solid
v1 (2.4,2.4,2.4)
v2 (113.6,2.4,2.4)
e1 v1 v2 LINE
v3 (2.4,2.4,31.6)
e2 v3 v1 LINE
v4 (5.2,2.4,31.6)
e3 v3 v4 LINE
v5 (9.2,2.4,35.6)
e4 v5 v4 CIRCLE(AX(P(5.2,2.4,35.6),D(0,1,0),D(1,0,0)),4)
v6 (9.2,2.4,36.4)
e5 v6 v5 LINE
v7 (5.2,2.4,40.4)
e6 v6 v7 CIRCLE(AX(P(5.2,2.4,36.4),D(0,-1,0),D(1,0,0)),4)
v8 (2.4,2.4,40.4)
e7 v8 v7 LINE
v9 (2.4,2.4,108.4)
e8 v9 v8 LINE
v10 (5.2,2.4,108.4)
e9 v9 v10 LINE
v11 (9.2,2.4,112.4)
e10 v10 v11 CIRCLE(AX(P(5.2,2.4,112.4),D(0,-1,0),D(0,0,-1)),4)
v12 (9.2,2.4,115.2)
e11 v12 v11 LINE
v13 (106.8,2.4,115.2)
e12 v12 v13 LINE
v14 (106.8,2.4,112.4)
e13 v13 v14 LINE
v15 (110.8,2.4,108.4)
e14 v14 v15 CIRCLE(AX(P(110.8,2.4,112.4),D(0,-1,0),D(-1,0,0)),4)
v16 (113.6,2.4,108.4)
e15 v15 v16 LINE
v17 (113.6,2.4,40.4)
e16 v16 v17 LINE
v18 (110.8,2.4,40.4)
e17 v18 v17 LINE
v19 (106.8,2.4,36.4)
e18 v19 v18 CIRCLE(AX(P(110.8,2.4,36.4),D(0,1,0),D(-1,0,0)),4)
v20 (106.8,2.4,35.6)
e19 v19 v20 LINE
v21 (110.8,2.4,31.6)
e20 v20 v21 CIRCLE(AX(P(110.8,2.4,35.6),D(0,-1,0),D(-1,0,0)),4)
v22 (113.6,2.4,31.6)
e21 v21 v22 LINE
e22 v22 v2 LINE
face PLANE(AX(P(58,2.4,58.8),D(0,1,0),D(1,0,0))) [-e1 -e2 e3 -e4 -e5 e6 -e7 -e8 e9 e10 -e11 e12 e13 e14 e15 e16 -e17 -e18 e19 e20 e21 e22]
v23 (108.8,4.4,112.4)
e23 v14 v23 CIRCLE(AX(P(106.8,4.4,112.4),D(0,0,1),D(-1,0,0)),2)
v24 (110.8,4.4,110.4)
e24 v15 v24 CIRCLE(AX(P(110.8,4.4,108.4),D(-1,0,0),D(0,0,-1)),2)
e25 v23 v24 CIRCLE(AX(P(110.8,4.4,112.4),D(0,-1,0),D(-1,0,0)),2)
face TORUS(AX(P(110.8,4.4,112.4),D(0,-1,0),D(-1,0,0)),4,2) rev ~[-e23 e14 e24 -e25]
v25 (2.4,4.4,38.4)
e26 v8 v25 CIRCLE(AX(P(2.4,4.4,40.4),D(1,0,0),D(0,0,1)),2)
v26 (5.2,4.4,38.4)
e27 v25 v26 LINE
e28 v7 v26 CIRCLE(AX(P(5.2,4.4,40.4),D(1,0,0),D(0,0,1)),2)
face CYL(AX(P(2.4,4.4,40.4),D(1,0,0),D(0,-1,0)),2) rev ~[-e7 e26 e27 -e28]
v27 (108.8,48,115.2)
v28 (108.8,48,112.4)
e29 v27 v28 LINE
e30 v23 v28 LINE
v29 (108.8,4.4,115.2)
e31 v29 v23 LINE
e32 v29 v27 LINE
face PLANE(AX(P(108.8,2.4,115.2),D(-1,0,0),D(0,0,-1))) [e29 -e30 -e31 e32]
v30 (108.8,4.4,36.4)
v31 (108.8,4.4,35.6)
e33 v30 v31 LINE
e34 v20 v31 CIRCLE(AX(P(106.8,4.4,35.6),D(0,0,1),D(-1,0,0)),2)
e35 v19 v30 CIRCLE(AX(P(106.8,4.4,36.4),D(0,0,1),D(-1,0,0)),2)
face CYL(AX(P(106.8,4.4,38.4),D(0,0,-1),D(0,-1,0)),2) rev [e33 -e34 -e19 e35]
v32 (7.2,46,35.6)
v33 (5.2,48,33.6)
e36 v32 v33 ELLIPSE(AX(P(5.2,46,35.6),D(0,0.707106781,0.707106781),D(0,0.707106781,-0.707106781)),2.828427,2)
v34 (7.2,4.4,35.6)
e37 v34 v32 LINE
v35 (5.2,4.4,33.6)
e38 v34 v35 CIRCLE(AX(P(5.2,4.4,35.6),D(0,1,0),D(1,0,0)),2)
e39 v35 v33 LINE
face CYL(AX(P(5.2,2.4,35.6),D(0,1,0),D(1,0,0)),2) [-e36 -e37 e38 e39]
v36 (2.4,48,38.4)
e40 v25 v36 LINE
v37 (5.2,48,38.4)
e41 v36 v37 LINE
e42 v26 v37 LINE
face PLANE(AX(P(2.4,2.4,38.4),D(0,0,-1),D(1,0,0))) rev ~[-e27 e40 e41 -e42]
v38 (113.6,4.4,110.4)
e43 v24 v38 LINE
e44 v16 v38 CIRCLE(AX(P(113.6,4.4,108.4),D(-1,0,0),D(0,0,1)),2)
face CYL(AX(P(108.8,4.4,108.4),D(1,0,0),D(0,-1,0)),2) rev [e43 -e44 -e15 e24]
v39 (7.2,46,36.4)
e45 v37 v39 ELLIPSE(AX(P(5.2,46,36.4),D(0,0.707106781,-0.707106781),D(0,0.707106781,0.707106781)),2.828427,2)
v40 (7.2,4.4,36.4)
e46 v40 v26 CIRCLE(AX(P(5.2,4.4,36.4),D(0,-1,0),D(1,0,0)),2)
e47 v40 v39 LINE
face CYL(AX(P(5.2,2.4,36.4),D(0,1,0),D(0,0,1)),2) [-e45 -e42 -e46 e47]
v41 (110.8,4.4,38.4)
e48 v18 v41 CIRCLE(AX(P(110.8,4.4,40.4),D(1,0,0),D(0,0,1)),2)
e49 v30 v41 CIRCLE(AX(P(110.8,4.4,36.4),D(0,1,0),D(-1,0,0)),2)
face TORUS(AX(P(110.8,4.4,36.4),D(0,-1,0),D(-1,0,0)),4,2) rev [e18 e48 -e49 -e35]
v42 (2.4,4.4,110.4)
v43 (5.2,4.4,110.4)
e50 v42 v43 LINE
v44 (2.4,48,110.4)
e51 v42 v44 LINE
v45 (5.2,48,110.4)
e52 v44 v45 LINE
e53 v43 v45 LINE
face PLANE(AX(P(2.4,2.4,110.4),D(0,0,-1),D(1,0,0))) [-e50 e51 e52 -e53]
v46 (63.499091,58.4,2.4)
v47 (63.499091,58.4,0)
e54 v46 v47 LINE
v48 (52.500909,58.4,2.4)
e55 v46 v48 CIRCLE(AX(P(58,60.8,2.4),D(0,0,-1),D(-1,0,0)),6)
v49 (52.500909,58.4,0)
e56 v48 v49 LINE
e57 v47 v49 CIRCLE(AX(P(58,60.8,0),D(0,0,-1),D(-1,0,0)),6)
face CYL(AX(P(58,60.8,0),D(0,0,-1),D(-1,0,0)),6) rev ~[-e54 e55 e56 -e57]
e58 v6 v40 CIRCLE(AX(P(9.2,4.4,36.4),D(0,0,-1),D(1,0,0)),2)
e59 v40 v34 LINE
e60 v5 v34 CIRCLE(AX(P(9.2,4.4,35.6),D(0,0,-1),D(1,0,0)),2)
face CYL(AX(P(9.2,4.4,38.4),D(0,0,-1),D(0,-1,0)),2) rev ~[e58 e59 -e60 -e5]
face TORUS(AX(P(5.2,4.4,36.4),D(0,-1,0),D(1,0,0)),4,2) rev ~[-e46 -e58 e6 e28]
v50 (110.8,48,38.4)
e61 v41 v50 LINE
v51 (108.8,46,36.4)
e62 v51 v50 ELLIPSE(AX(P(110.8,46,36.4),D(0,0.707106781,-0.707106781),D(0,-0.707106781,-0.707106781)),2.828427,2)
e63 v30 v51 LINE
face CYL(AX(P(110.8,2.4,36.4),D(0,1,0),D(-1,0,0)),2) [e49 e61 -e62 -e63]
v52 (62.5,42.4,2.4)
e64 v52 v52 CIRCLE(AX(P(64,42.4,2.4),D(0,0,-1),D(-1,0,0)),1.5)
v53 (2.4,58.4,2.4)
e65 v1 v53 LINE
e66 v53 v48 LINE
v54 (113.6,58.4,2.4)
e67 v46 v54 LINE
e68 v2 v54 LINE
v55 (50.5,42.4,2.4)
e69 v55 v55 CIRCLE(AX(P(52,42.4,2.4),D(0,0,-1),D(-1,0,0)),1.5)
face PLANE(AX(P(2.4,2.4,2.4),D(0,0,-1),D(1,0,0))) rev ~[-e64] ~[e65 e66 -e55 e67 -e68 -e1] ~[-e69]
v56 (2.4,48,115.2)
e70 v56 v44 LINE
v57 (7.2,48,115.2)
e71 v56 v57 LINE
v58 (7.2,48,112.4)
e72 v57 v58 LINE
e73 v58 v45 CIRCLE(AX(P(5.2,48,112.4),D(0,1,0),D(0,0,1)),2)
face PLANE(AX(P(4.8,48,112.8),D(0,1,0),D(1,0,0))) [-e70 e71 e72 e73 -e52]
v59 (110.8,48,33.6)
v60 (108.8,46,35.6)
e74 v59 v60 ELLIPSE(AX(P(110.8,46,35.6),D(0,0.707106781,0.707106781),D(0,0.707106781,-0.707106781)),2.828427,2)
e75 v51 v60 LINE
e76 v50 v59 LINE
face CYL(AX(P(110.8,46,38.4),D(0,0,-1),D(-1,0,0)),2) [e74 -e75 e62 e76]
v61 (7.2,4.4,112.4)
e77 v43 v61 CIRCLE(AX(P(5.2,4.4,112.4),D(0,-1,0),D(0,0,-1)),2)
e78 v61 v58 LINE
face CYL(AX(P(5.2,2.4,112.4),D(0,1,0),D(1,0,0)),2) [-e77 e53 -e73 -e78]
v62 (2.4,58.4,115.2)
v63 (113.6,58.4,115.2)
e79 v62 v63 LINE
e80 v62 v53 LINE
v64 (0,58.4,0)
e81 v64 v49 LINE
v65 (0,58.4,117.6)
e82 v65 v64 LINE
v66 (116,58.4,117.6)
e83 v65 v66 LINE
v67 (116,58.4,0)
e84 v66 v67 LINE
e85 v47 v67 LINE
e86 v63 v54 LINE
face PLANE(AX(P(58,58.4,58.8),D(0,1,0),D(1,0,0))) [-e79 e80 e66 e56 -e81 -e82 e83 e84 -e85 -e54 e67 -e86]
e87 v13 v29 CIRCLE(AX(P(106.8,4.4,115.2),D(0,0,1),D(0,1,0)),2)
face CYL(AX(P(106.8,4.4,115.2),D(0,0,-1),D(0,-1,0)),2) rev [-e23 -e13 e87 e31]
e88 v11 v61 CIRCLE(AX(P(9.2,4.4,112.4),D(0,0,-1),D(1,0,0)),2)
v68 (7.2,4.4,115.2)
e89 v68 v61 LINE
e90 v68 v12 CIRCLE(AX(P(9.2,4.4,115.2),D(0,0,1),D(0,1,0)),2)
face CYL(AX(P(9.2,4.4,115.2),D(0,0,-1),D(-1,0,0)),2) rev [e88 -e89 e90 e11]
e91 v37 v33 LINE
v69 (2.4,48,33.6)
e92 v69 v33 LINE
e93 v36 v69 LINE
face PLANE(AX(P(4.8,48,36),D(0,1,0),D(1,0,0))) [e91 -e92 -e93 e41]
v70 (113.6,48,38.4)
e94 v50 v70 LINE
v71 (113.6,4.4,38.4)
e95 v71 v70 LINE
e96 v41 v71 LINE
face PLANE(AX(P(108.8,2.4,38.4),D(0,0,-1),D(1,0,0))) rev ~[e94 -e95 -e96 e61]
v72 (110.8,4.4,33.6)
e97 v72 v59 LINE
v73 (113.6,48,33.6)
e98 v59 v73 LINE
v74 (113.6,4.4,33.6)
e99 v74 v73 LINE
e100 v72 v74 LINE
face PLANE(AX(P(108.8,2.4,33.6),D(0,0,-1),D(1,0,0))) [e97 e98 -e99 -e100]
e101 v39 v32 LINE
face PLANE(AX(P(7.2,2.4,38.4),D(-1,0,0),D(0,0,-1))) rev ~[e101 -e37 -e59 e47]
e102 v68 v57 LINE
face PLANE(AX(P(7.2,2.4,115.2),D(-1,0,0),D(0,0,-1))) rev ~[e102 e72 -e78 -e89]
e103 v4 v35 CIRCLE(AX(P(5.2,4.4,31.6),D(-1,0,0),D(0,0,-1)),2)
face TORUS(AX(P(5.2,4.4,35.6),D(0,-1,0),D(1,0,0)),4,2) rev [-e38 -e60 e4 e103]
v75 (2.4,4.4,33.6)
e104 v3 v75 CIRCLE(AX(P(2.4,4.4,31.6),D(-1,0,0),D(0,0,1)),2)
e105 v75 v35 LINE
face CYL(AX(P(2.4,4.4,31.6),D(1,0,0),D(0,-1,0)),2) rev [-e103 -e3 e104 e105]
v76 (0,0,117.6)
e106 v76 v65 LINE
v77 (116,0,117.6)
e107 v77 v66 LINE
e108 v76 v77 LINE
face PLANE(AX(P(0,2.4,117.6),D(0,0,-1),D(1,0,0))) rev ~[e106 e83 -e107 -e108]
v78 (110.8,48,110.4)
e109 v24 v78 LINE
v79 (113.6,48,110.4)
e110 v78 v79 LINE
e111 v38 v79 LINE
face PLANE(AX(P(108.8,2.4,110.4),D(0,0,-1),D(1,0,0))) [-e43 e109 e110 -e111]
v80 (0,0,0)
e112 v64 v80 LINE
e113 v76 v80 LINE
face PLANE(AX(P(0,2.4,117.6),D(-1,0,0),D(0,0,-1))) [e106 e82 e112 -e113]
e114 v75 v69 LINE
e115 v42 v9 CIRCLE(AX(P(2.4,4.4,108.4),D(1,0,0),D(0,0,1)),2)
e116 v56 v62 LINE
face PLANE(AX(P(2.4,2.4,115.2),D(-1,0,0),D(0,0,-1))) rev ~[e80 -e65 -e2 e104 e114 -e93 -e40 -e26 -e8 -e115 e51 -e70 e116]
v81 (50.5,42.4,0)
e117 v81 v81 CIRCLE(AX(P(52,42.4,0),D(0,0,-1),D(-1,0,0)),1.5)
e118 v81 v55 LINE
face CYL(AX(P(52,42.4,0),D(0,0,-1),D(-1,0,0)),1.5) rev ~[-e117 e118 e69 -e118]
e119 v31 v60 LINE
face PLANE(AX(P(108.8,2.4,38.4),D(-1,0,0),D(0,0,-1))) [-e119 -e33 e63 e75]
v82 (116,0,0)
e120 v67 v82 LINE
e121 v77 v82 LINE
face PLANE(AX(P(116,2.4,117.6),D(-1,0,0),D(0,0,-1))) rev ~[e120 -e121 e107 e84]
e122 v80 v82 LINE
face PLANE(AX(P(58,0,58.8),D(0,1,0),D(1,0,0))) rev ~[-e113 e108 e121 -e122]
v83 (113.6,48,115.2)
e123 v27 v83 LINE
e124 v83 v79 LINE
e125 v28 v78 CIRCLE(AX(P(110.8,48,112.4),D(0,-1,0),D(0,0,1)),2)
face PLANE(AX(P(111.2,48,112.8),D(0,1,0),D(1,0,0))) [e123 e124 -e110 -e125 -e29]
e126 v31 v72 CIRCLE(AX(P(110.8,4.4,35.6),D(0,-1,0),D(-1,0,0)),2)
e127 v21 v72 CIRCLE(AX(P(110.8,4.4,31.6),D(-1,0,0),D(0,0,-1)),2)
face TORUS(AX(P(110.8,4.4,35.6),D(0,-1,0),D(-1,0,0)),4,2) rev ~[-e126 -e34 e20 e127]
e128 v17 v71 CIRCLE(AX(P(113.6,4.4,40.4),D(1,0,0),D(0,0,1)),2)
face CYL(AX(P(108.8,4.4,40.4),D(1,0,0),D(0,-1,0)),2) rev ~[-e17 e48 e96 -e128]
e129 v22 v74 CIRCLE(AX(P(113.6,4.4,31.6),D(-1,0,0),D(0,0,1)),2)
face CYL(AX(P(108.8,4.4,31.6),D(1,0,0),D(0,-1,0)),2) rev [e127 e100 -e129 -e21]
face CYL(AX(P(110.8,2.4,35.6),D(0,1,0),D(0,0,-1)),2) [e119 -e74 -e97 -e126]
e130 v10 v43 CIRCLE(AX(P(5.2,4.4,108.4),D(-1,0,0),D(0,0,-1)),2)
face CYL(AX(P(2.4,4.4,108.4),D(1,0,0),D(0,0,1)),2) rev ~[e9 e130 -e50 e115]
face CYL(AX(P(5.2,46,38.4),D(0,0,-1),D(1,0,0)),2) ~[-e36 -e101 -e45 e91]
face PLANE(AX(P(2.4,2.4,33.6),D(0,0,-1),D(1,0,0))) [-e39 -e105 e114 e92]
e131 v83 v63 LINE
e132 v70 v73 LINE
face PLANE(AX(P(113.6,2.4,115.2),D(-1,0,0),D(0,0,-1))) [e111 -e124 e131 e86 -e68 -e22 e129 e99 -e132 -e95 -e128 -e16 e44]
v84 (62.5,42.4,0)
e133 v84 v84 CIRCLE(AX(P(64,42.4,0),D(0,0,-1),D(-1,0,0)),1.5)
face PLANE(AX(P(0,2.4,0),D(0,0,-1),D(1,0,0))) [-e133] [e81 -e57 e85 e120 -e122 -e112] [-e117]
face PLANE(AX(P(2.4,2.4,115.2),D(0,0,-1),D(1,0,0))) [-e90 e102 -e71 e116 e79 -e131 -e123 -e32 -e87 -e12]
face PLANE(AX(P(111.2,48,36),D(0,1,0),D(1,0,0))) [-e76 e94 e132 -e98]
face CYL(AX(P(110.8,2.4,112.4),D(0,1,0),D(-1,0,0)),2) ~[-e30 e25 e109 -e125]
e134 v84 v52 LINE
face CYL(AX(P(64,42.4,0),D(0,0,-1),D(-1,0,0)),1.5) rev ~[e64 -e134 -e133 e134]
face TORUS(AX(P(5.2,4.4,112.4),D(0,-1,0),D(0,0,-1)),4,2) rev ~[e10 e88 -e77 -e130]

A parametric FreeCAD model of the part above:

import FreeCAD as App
import Part
import Sketcher


def edges_at(feature, points):
    """Names of the edges that pass closest to the given points."""
    edges = feature.Shape.Edges
    near = lambda p: min(range(len(edges)), key=lambda i: edges[i].distToShape(Part.Vertex(*p))[0])
    return sorted({f"Edge{near(p) + 1}" for p in points})


def add_polygon(sketch, points):
    """Adds a closed chain of lines whose ends are joined by coincident constraints."""
    first, n = sketch.GeometryCount, len(points)
    for a, b in zip(points, points[1:] + points[:1]):
        sketch.addGeometry(Part.LineSegment(App.Vector(*a, 0), App.Vector(*b, 0)), False)
    for i in range(n):
        sketch.addConstraint(Sketcher.Constraint("Coincident", first + i, 2, first + (i + 1) % n, 1))

doc = App.newDocument("Part")
body = doc.addObject("PartDesign::Body", "Body")

sketch1 = doc.addObject("Sketcher::SketchObject", "Sketch")
body.addObject(sketch1)
sketch1.AttachmentSupport = (doc.XZ_Plane, [""])
sketch1.MapMode = "FlatFace"
add_polygon(sketch1, [(0, 0), (0, 117.6), (116, 117.6), (116, 0)])
sketch1.addConstraint([
    Sketcher.Constraint("Vertical", 0),
    Sketcher.Constraint("Horizontal", 1),
    Sketcher.Constraint("Vertical", 2),
    Sketcher.Constraint("Horizontal", 3),
    Sketcher.Constraint("Coincident", 3, 2, -1, 1),
    Sketcher.Constraint("DistanceX", 1, 1, 1, 2, 116.0),
    Sketcher.Constraint("DistanceY", 0, 1, 0, 2, 117.6),
])
pad1 = doc.addObject("PartDesign::Pad", "Pad")
body.addObject(pad1)
pad1.Profile = sketch1
pad1.Length = 2.4
pad1.Reversed = True

sketch2 = doc.addObject("Sketcher::SketchObject", "Sketch001")
body.addObject(sketch2)
sketch2.AttachmentSupport = (doc.XZ_Plane, [""])
sketch2.MapMode = "FlatFace"
sketch2.AttachmentOffset = App.Placement(App.Vector(0, 0, -2.4), App.Rotation())
add_polygon(sketch2, [(0, 0), (0, 117.6), (116, 117.6), (116, 0)])
add_polygon(sketch2, [(113.6, 115.2), (2.4, 115.2), (2.4, 2.4), (113.6, 2.4)])
sketch2.addConstraint([
    Sketcher.Constraint("Vertical", 0),
    Sketcher.Constraint("Horizontal", 1),
    Sketcher.Constraint("Vertical", 2),
    Sketcher.Constraint("Horizontal", 3),
    Sketcher.Constraint("Horizontal", 4),
    Sketcher.Constraint("Vertical", 5),
    Sketcher.Constraint("Horizontal", 6),
    Sketcher.Constraint("Vertical", 7),
    Sketcher.Constraint("Coincident", 3, 2, -1, 1),
    Sketcher.Constraint("DistanceX", 1, 1, 1, 2, 116.0),
    Sketcher.Constraint("DistanceX", 4, 2, 4, 1, 111.2),
    Sketcher.Constraint("DistanceY", 0, 1, 0, 2, 117.6),
    Sketcher.Constraint("DistanceY", 5, 2, 5, 1, 112.8),
    Sketcher.Constraint("DistanceX", -1, 1, 4, 2, 2.4),
    Sketcher.Constraint("DistanceY", -1, 1, 4, 2, 115.2),
])
pad2 = doc.addObject("PartDesign::Pad", "Pad001")
body.addObject(pad2)
pad2.Profile = sketch2
pad2.Length = 56
pad2.Reversed = True

sketch3 = doc.addObject("Sketcher::SketchObject", "Sketch002")
body.addObject(sketch3)
sketch3.AttachmentSupport = (doc.XY_Plane, [""])
sketch3.MapMode = "FlatFace"
sketch3.addGeometry([
    Part.Circle(App.Vector(64, 42.4, 0), App.Vector(0, 0, 1), 1.5),
    Part.Circle(App.Vector(52, 42.4, 0), App.Vector(0, 0, 1), 1.5),
], False)
sketch3.addConstraint([
    Sketcher.Constraint("Equal", 0, 1),
    Sketcher.Constraint("Horizontal", 0, 3, 1, 3),
    Sketcher.Constraint("Diameter", 0, 3.0),
    Sketcher.Constraint("DistanceX", -1, 1, 0, 3, 64.0),
    Sketcher.Constraint("DistanceX", -1, 1, 1, 3, 52.0),
    Sketcher.Constraint("DistanceY", -1, 1, 0, 3, 42.4),
])
pocket1 = doc.addObject("PartDesign::Pocket", "Pocket")
body.addObject(pocket1)
pocket1.Profile = sketch3
pocket1.Length = 10
pocket1.Reversed = True

sketch4 = doc.addObject("Sketcher::SketchObject", "Sketch003")
body.addObject(sketch4)
sketch4.AttachmentSupport = (doc.XZ_Plane, [""])
sketch4.MapMode = "FlatFace"
sketch4.AttachmentOffset = App.Placement(App.Vector(0, 0, -2.4), App.Rotation())
add_polygon(sketch4, [(2.4, 110.4), (2.4, 115.2), (7.2, 115.2), (7.2, 110.4)])
add_polygon(sketch4, [(2.4, 33.6), (2.4, 38.4), (7.2, 38.4), (7.2, 33.6)])
add_polygon(sketch4, [(108.8, 110.4), (108.8, 115.2), (113.6, 115.2), (113.6, 110.4)])
add_polygon(sketch4, [(108.8, 33.6), (108.8, 38.4), (113.6, 38.4), (113.6, 33.6)])
sketch4.addConstraint([
    Sketcher.Constraint("Vertical", 0),
    Sketcher.Constraint("Horizontal", 1),
    Sketcher.Constraint("Vertical", 2),
    Sketcher.Constraint("Horizontal", 3),
    Sketcher.Constraint("Vertical", 4),
    Sketcher.Constraint("Horizontal", 5),
    Sketcher.Constraint("Vertical", 6),
    Sketcher.Constraint("Horizontal", 7),
    Sketcher.Constraint("Vertical", 8),
    Sketcher.Constraint("Horizontal", 9),
    Sketcher.Constraint("Vertical", 10),
    Sketcher.Constraint("Horizontal", 11),
    Sketcher.Constraint("Vertical", 12),
    Sketcher.Constraint("Horizontal", 13),
    Sketcher.Constraint("Vertical", 14),
    Sketcher.Constraint("Horizontal", 15),
    Sketcher.Constraint("Horizontal", 1, 2, 8, 2),
    Sketcher.Constraint("Horizontal", 3, 2, 10, 2),
    Sketcher.Constraint("Horizontal", 5, 2, 12, 2),
    Sketcher.Constraint("Horizontal", 7, 2, 14, 2),
    Sketcher.Constraint("Vertical", 3, 2, 4, 2),
    Sketcher.Constraint("Vertical", 2, 2, 5, 2),
    Sketcher.Constraint("Vertical", 11, 2, 12, 2),
    Sketcher.Constraint("Vertical", 10, 2, 13, 2),
    Sketcher.Constraint("Equal", 7, 9),
    Sketcher.Constraint("Equal", 15, 0),
    Sketcher.Constraint("Equal", 2, 4),
    Sketcher.Constraint("DistanceX", 1, 1, 1, 2, 4.8),
    Sketcher.Constraint("DistanceY", 4, 2, 3, 2, 72.0),
    Sketcher.Constraint("DistanceX", -1, 1, 0, 2, 2.4),
    Sketcher.Constraint("DistanceY", -1, 1, 0, 2, 115.2),
    Sketcher.Constraint("DistanceX", -1, 1, 8, 2, 108.8),
])
pad3 = doc.addObject("PartDesign::Pad", "Pad002")
body.addObject(pad3)
pad3.Profile = sketch4
pad3.Length = 45.6
pad3.Reversed = True
doc.recompute()

fillet = doc.addObject("PartDesign::Fillet", "Fillet")
body.addObject(fillet)
fillet.Base = (pad3, edges_at(pad3, [
    (4.8, 2.4, 38.4),
    (4.8, 2.4, 33.6),
    (111.2, 2.4, 33.6),
    (111.2, 2.4, 38.4),
    (7.2, 25.2, 38.4),
    (7.2, 48, 36),
    (7.2, 25.2, 33.6),
    (7.2, 2.4, 36),
    (108.8, 25.2, 33.6),
    (108.8, 48, 36),
    (108.8, 25.2, 38.4),
    (108.8, 2.4, 36),
    (7.2, 25.2, 110.4),
    (108.8, 25.2, 110.4),
    (4.8, 2.4, 110.4),
    (7.2, 2.4, 112.8),
    (108.8, 2.4, 112.8),
    (111.2, 2.4, 110.4),
]))
fillet.Radius = 2

sketch5 = doc.addObject("Sketcher::SketchObject", "Sketch004")
body.addObject(sketch5)
sketch5.AttachmentSupport = (doc.XY_Plane, [""])
sketch5.MapMode = "FlatFace"
sketch5.addGeometry(Part.Circle(App.Vector(58, 60.8, 0), App.Vector(0, 0, 1), 6), False)
sketch5.addConstraint([
    Sketcher.Constraint("Diameter", 0, 12.0),
    Sketcher.Constraint("DistanceX", -1, 1, 0, 3, 58.0),
    Sketcher.Constraint("DistanceY", -1, 1, 0, 3, 60.8),
])
pocket2 = doc.addObject("PartDesign::Pocket", "Pocket001")
body.addObject(pocket2)
pocket2.Profile = sketch5
pocket2.Length = 10
pocket2.Reversed = True

doc.recompute()
